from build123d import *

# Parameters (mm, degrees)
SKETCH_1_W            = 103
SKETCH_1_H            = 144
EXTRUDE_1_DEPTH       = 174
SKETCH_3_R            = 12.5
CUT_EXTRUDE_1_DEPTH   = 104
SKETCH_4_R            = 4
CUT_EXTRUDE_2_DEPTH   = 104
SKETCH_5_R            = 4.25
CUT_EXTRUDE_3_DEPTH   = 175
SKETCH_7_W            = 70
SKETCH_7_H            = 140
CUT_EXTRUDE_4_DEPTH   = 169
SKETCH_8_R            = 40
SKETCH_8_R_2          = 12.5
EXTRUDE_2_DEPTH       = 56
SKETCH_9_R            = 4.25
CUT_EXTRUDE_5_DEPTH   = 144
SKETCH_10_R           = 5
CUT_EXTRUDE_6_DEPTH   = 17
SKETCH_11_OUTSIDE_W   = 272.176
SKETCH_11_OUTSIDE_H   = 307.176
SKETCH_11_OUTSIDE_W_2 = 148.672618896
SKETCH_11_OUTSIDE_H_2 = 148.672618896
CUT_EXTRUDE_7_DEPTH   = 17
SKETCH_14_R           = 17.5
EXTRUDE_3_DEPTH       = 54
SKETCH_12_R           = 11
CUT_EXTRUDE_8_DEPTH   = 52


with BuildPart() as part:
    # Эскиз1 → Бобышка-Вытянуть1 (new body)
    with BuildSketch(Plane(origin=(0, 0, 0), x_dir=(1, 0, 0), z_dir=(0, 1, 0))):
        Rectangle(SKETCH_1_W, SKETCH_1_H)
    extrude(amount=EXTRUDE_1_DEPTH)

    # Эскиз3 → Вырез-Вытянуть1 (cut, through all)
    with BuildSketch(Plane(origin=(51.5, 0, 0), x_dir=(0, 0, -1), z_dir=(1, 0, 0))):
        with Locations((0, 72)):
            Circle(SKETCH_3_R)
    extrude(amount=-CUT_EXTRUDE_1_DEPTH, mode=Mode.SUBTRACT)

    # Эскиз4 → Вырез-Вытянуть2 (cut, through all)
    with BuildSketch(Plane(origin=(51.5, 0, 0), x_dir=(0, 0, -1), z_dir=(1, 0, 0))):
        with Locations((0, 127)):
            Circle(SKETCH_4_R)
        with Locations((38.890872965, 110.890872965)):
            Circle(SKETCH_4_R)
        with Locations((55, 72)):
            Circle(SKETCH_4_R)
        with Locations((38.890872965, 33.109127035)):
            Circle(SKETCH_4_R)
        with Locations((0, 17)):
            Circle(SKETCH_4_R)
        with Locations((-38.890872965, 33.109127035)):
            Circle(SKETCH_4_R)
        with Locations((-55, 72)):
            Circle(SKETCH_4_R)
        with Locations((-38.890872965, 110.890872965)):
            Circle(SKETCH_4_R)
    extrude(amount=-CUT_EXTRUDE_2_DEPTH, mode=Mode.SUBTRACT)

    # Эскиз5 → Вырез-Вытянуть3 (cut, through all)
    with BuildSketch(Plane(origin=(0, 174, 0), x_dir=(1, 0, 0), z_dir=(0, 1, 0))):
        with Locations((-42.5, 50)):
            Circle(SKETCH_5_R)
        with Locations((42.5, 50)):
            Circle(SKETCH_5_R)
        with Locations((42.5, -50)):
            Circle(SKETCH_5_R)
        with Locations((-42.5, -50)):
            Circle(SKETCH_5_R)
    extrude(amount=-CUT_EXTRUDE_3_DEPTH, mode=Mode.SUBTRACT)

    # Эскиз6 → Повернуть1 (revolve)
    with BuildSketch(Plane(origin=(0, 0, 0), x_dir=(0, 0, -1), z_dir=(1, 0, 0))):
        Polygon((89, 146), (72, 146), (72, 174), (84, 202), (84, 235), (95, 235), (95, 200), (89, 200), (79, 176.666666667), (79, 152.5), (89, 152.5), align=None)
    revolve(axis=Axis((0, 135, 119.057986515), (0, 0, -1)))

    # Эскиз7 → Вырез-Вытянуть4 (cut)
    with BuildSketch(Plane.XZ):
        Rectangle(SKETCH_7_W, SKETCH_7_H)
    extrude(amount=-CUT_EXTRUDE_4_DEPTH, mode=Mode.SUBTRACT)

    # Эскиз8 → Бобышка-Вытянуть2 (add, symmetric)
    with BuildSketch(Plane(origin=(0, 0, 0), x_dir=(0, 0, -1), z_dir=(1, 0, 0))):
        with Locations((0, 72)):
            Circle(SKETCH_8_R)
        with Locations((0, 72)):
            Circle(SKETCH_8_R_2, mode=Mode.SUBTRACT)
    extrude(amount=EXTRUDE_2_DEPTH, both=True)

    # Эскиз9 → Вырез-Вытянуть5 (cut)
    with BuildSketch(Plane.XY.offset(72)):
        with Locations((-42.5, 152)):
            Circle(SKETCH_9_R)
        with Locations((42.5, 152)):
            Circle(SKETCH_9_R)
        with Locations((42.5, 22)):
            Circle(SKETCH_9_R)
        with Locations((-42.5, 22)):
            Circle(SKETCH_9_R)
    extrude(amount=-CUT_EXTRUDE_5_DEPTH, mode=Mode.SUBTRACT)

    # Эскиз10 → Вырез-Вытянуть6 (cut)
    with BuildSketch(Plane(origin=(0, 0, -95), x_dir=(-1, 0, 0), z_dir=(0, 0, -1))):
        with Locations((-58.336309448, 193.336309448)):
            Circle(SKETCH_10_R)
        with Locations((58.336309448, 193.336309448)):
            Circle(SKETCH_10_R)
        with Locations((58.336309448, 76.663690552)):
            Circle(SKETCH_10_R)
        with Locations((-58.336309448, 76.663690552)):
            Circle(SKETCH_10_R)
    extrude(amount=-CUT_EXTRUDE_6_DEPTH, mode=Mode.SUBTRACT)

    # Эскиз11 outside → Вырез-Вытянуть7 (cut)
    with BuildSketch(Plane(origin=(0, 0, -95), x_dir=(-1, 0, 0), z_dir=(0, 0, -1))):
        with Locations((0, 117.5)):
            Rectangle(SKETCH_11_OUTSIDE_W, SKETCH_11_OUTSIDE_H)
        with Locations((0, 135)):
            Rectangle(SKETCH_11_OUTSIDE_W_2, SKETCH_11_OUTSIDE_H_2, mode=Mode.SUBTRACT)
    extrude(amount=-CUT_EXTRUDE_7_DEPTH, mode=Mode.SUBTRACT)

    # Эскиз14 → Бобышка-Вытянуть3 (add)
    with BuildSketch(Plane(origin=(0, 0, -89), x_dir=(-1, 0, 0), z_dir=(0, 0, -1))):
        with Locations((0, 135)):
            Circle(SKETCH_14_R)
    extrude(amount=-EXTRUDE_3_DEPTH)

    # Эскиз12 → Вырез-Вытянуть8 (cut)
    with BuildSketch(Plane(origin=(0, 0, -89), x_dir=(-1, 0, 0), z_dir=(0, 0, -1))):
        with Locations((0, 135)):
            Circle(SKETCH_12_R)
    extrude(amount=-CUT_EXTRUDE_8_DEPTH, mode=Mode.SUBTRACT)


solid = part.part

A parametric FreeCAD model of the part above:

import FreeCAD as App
import Part
import Sketcher
from FreeCAD import Vector
Q = App.Units.Quantity


def add_polygon(sketch, points):
    """Adds a closed chain of lines whose ends are joined by coincident constraints."""
    first, n = sketch.GeometryCount, len(points)
    for a, b in zip(points, points[1:] + points[:1]):
        sketch.addGeometry(Part.LineSegment(App.Vector(*a, 0), App.Vector(*b, 0)), False)
    for i in range(n):
        sketch.addConstraint(Sketcher.Constraint("Coincident", first + i, 2, first + (i + 1) % n, 1))

doc = App.newDocument("Part")
params = doc.addObject("Spreadsheet::Sheet", "Params")
for row, (alias, value) in enumerate([
    ("sketch1_width", "103 mm"),
    ("sketch1_height", "144 mm"),
    ("pad1_length", "174 mm"),
    ("sketch2_diameter", "25 mm"),
    ("sketch3_diameter", "8 mm"),
    ("sketch4_diameter", "8.5 mm"),
    ("sketch5_width", "35 mm"),
    ("sketch5_width2", "33 mm"),
    ("sketch5_width3", "28 mm"),
    ("sketch5_height", "17 mm"),
    ("sketch5_height2", "10 mm"),
    ("revolution_angle", "360 deg"),
    ("sketch6_width", "70 mm"),
    ("sketch6_height", "140 mm"),
    ("pocket4_length", "169 mm"),
    ("sketch7_diameter", "80 mm"),
    ("sketch7_diameter2", "25 mm"),
    ("pad2_length", "112 mm"),
    ("sketch8_diameter", "8.5 mm"),
    ("pocket5_length", "144 mm"),
    ("sketch9_diameter", "10 mm"),
    ("pocket6_length", "17 mm"),
    ("pocket7_length", "17 mm"),
    ("sketch11_diameter", "35 mm"),
    ("pad3_length", "54 mm"),
    ("sketch12_diameter", "22 mm"),
    ("pocket8_length", "52 mm"),
], start=1):
    params.set(f"A{row}", alias)
    params.set(f"B{row}", "=" + value)
    params.setAlias(f"B{row}", alias)

body = doc.addObject("PartDesign::Body", "Body")

# Sketch on XZ plane
sketch1 = body.newObject("Sketcher::SketchObject", "Sketch")
sketch1.AttachmentSupport = (doc.getObject("XZ_Plane"), [""])
sketch1.MapMode = "FlatFace"
add_polygon(sketch1, [(-52, -72), (-52, 72), (52, 72), (52, -72)])  # lines 0-3
sketch1.addConstraint([
    Sketcher.Constraint("Vertical", 0),
    Sketcher.Constraint("Horizontal", 1),
    Sketcher.Constraint("Vertical", 2),
    Sketcher.Constraint("Horizontal", 3),
    Sketcher.Constraint("Symmetric", 0, 2, 2, 2, -1, 1),
    Sketcher.Constraint("DistanceX", 1, 1, 1, 2, Q("103 mm")),
    Sketcher.Constraint("DistanceY", 0, 1, 0, 2, Q("144 mm")),
])
sketch1.setExpression("Constraints[9]", "Params.sketch1_width")
sketch1.setExpression("Constraints[10]", "Params.sketch1_height")
pad1 = body.newObject("PartDesign::Pad", "Pad")
pad1.Profile = sketch1
pad1.setExpression("Length", "Params.pad1_length")
pad1.Reversed = True

# Sketch on YZ plane
sketch2 = body.newObject("Sketcher::SketchObject", "Sketch001")
sketch2.AttachmentSupport = (doc.getObject("YZ_Plane"), [""])
sketch2.MapMode = "FlatFace"
sketch2.AttachmentOffset = App.Placement(Vector(0, 0, 51.5), App.Rotation())
sketch2.addGeometry(Part.Circle(Vector(72, 0, 0), Vector(0, 0, 1), 12), False)
sketch2.addConstraint([
    Sketcher.Constraint("PointOnObject", 0, 3, -1),
    Sketcher.Constraint("Diameter", 0, Q("25 mm")),
    Sketcher.Constraint("DistanceX", -1, 1, 0, 3, Q("72 mm")),
])
sketch2.setExpression("Constraints[1]", "Params.sketch2_diameter")
pocket1 = body.newObject("PartDesign::Pocket", "Pocket")
pocket1.Profile = sketch2
pocket1.Type = "ThroughAll"

# Sketch on YZ plane
sketch3 = body.newObject("Sketcher::SketchObject", "Sketch002")
sketch3.AttachmentSupport = (doc.getObject("YZ_Plane"), [""])
sketch3.MapMode = "FlatFace"
sketch3.AttachmentOffset = App.Placement(Vector(0, 0, 51.5), App.Rotation())
sketch3.addGeometry([
    Part.Circle(Vector(127, 0, 0), Vector(0, 0, 1), 4),  # 0
    Part.Circle(Vector(110.9, -38.9, 0), Vector(0, 0, 1), 4),  # 1
    Part.Circle(Vector(72, -55, 0), Vector(0, 0, 1), 4),  # 2
    Part.Circle(Vector(33.1, -38.9, 0), Vector(0, 0, 1), 4),  # 3
    Part.Circle(Vector(17, 0, 0), Vector(0, 0, 1), 4),  # 4
    Part.Circle(Vector(33.1, 38.9, 0), Vector(0, 0, 1), 4),  # 5
    Part.Circle(Vector(72, 55, 0), Vector(0, 0, 1), 4),  # 6
    Part.Circle(Vector(110.9, 38.9, 0), Vector(0, 0, 1), 4),  # 7
], False)
sketch3.addConstraint([
    Sketcher.Constraint("Equal", 0, 1),
    Sketcher.Constraint("Equal", 1, 2),
    Sketcher.Constraint("Equal", 2, 3),
    Sketcher.Constraint("Equal", 3, 4),
    Sketcher.Constraint("Equal", 4, 5),
    Sketcher.Constraint("Equal", 5, 6),
    Sketcher.Constraint("Equal", 6, 7),
    Sketcher.Constraint("Symmetric", 3, 3, 5, 3, -1),
    Sketcher.Constraint("Symmetric", 2, 3, 6, 3, -1),
    Sketcher.Constraint("Symmetric", 1, 3, 7, 3, -1),
    Sketcher.Constraint("PointOnObject", 0, 3, -1),
    Sketcher.Constraint("PointOnObject", 4, 3, -1),
    Sketcher.Constraint("Horizontal", 1, 3, 3, 3),
    Sketcher.Constraint("Diameter", 0, Q("8 mm")),
    Sketcher.Constraint("DistanceX", -1, 1, 0, 3, Q("127 mm")),
    Sketcher.Constraint("DistanceX", -1, 1, 2, 3, Q("72 mm")),
    Sketcher.Constraint("DistanceY", 2, 3, -1, 1, Q("55 mm")),
    Sketcher.Constraint("DistanceX", -1, 1, 4, 3, Q("17 mm")),
    Sketcher.Constraint("DistanceX", -1, 1, 1, 3, Q("110.890873 mm")),
    Sketcher.Constraint("DistanceY", 1, 3, -1, 1, Q("38.890873 mm")),
    Sketcher.Constraint("DistanceX", -1, 1, 3, 3, Q("33.109127 mm")),
])
sketch3.setExpression("Constraints[13]", "Params.sketch3_diameter")
pocket2 = body.newObject("PartDesign::Pocket", "Pocket001")
pocket2.Profile = sketch3
pocket2.Type = "ThroughAll"

# Sketch on XZ plane
sketch4 = body.newObject("Sketcher::SketchObject", "Sketch003")
sketch4.AttachmentSupport = (doc.getObject("XZ_Plane"), [""])
sketch4.MapMode = "FlatFace"
sketch4.AttachmentOffset = App.Placement(Vector(0, 0, -174), App.Rotation())
sketch4.addGeometry([
    Part.Circle(Vector(-42.5, -50, 0), Vector(0, 0, 1), 4.2),
    Part.Circle(Vector(42.5, -50, 0), Vector(0, 0, 1), 4.2),
    Part.Circle(Vector(42.5, 50, 0), Vector(0, 0, 1), 4.2),
    Part.Circle(Vector(-42.5, 50, 0), Vector(0, 0, 1), 4.2),
], False)
sketch4.addConstraint([
    Sketcher.Constraint("Equal", 0, 1),
    Sketcher.Constraint("Equal", 1, 2),
    Sketcher.Constraint("Equal", 2, 3),
    Sketcher.Constraint("Symmetric", 0, 3, 2, 3, -1, 1),
    Sketcher.Constraint("Symmetric", 1, 3, 3, 3, -1, 1),
    Sketcher.Constraint("Symmetric", 0, 3, 1, 3, -2),
    Sketcher.Constraint("Diameter", 0, Q("8.5 mm")),
    Sketcher.Constraint("DistanceY", 0, 3, -1, 1, Q("50 mm")),
    Sketcher.Constraint("DistanceX", 0, 3, 1, 3, Q("85 mm")),
])
sketch4.setExpression("Constraints[6]", "Params.sketch4_diameter")
pocket3 = body.newObject("PartDesign::Pocket", "Pocket002")
pocket3.Profile = sketch4
pocket3.Type = "ThroughAll"
pocket3.Reversed = True

# Sketch on YZ plane
sketch5 = body.newObject("Sketcher::SketchObject", "Sketch004")
sketch5.AttachmentSupport = (doc.getObject("YZ_Plane"), [""])
sketch5.MapMode = "FlatFace"
add_polygon(sketch5, [(146, -72), (146, -89), (152, -89), (152, -79), (177, -79), (200, -89), (200, -95), (235, -95), (235, -84), (202, -84), (174, -72)])  # lines 0-10
sketch5.addGeometry(Part.LineSegment(Vector(135, -72, 0), Vector(135, -95, 0)), True)  # axis
sketch5.addConstraint([
    Sketcher.Constraint("Vertical", 0),
    Sketcher.Constraint("Horizontal", 1),
    Sketcher.Constraint("Vertical", 2),
    Sketcher.Constraint("Horizontal", 3),
    Sketcher.Constraint("Vertical", 5),
    Sketcher.Constraint("Horizontal", 6),
    Sketcher.Constraint("Vertical", 7),
    Sketcher.Constraint("Horizontal", 8),
    Sketcher.Constraint("Horizontal", 10),
    Sketcher.Constraint("Vertical", 11),
    Sketcher.Constraint("Parallel", 4, 9),
    Sketcher.Constraint("Horizontal", 1, 2, 4, 2),
    Sketcher.Constraint("Horizontal", 10, 2, 11, 1),
    Sketcher.Constraint("Horizontal", 6, 2, 11, 2),
    Sketcher.Constraint("DistanceX", 6, 1, 6, 2, Q("35 mm")),
    Sketcher.Constraint("DistanceX", 8, 2, 8, 1, Q("33 mm")),
    Sketcher.Constraint("DistanceX", 10, 2, 10, 1, Q("28 mm")),
    Sketcher.Constraint("DistanceY", 0, 2, 0, 1, Q("17 mm")),
    Sketcher.Constraint("DistanceY", 2, 1, 2, 2, Q("10 mm")),
    Sketcher.Constraint("DistanceY", 5, 2, 5, 1, Q("6 mm")),
    Sketcher.Constraint("DistanceY", 7, 1, 7, 2, Q("11 mm")),
    Sketcher.Constraint("DistanceX", 1, 1, 1, 2, Q("6.5 mm")),
    Sketcher.Constraint("DistanceX", -1, 1, 0, 2, Q("146 mm")),
    Sketcher.Constraint("DistanceY", 0, 2, -1, 1, Q("89 mm")),
    Sketcher.Constraint("DistanceX", -1, 1, 4, 2, Q("200 mm")),
    Sketcher.Constraint("DistanceX", -1, 1, 11, 1, Q("135 mm")),
])
sketch5.setExpression("Constraints[25]", "Params.sketch5_width")
sketch5.setExpression("Constraints[26]", "Params.sketch5_width2")
sketch5.setExpression("Constraints[27]", "Params.sketch5_width3")
sketch5.setExpression("Constraints[28]", "Params.sketch5_height")
sketch5.setExpression("Constraints[29]", "Params.sketch5_height2")
revolution = body.newObject("PartDesign::Revolution", "Revolution")
revolution.Profile = sketch5
revolution.ReferenceAxis = (sketch5, ["Axis0"])
revolution.setExpression("Angle", "Params.revolution_angle")

# Sketch on XZ plane
sketch6 = body.newObject("Sketcher::SketchObject", "Sketch005")
sketch6.AttachmentSupport = (doc.getObject("XZ_Plane"), [""])
sketch6.MapMode = "FlatFace"
add_polygon(sketch6, [(-35, 70), (-35, -70), (35, -70), (35, 70)])  # lines 0-3
sketch6.addConstraint([
    Sketcher.Constraint("Vertical", 0),
    Sketcher.Constraint("Horizontal", 1),
    Sketcher.Constraint("Vertical", 2),
    Sketcher.Constraint("Horizontal", 3),
    Sketcher.Constraint("Symmetric", 0, 2, 2, 2, -1, 1),
    Sketcher.Constraint("DistanceX", 1, 1, 1, 2, Q("70 mm")),
    Sketcher.Constraint("DistanceY", 0, 2, 0, 1, Q("140 mm")),
])
sketch6.setExpression("Constraints[9]", "Params.sketch6_width")
sketch6.setExpression("Constraints[10]", "Params.sketch6_height")
pocket4 = body.newObject("PartDesign::Pocket", "Pocket003")
pocket4.Profile = sketch6
pocket4.setExpression("Length", "Params.pocket4_length")

# Sketch on YZ plane
sketch7 = body.newObject("Sketcher::SketchObject", "Sketch006")
sketch7.AttachmentSupport = (doc.getObject("YZ_Plane"), [""])
sketch7.MapMode = "FlatFace"
sketch7.addGeometry([
    Part.Circle(Vector(72, 0, 0), Vector(0, 0, 1), 40),
    Part.Circle(Vector(72, 0, 0), Vector(0, 0, 1), 12),
], False)
sketch7.addConstraint([
    Sketcher.Constraint("Coincident", 1, 3, 0, 3),
    Sketcher.Constraint("PointOnObject", 0, 3, -1),
    Sketcher.Constraint("Diameter", 0, Q("80 mm")),
    Sketcher.Constraint("Diameter", 1, Q("25 mm")),
    Sketcher.Constraint("DistanceX", -1, 1, 0, 3, Q("72 mm")),
])
sketch7.setExpression("Constraints[2]", "Params.sketch7_diameter")
sketch7.setExpression("Constraints[3]", "Params.sketch7_diameter2")
pad2 = body.newObject("PartDesign::Pad", "Pad001")
pad2.Profile = sketch7
pad2.setExpression("Length", "Params.pad2_length")
pad2.Midplane = True

# Sketch on XY plane
sketch8 = body.newObject("Sketcher::SketchObject", "Sketch007")
sketch8.AttachmentSupport = (doc.getObject("XY_Plane"), [""])
sketch8.MapMode = "FlatFace"
sketch8.AttachmentOffset = App.Placement(Vector(0, 0, 72), App.Rotation())
sketch8.addGeometry([
    Part.Circle(Vector(-42.5, 152, 0), Vector(0, 0, 1), 4.2),
    Part.Circle(Vector(42.5, 152, 0), Vector(0, 0, 1), 4.2),
    Part.Circle(Vector(42.5, 22, 0), Vector(0, 0, 1), 4.2),
    Part.Circle(Vector(-42.5, 22, 0), Vector(0, 0, 1), 4.2),
], False)
sketch8.addConstraint([
    Sketcher.Constraint("Equal", 0, 1),
    Sketcher.Constraint("Equal", 1, 2),
    Sketcher.Constraint("Equal", 2, 3),
    Sketcher.Constraint("Symmetric", 0, 3, 1, 3, -2),
    Sketcher.Constraint("Symmetric", 2, 3, 3, 3, -2),
    Sketcher.Constraint("Vertical", 1, 3, 2, 3),
    Sketcher.Constraint("Diameter", 0, Q("8.5 mm")),
    Sketcher.Constraint("DistanceY", -1, 1, 0, 3, Q("152 mm")),
    Sketcher.Constraint("DistanceY", -1, 1, 2, 3, Q("22 mm")),
    Sketcher.Constraint("DistanceX", 0, 3, 1, 3, Q("85 mm")),
])
sketch8.setExpression("Constraints[6]", "Params.sketch8_diameter")
pocket5 = body.newObject("PartDesign::Pocket", "Pocket004")
pocket5.Profile = sketch8
pocket5.setExpression("Length", "Params.pocket5_length")

# Sketch on XY plane
sketch9 = body.newObject("Sketcher::SketchObject", "Sketch008")
sketch9.AttachmentSupport = (doc.getObject("XY_Plane"), [""])
sketch9.MapMode = "FlatFace"
sketch9.AttachmentOffset = App.Placement(Vector(0, 0, -95), App.Rotation())
sketch9.addGeometry([
    Part.Circle(Vector(58, 193, 0), Vector(0, 0, 1), 5),
    Part.Circle(Vector(-58, 193, 0), Vector(0, 0, 1), 5),
    Part.Circle(Vector(-58, 77, 0), Vector(0, 0, 1), 5),
    Part.Circle(Vector(58, 77, 0), Vector(0, 0, 1), 5),
], False)
sketch9.addConstraint([
    Sketcher.Constraint("Equal", 0, 1),
    Sketcher.Constraint("Equal", 1, 2),
    Sketcher.Constraint("Equal", 2, 3),
    Sketcher.Constraint("Symmetric", 0, 3, 1, 3, -2),
    Sketcher.Constraint("Symmetric", 2, 3, 3, 3, -2),
    Sketcher.Constraint("Vertical", 1, 3, 2, 3),
    Sketcher.Constraint("Diameter", 0, Q("10 mm")),
    Sketcher.Constraint("DistanceX", -1, 1, 0, 3, Q("58.336309 mm")),
    Sketcher.Constraint("DistanceY", -1, 1, 0, 3, Q("193.336309 mm")),
    Sketcher.Constraint("DistanceY", -1, 1, 2, 3, Q("76.663691 mm")),
])
sketch9.setExpression("Constraints[6]", "Params.sketch9_diameter")
pocket6 = body.newObject("PartDesign::Pocket", "Pocket005")
pocket6.Profile = sketch9
pocket6.setExpression("Length", "Params.pocket6_length")
pocket6.Reversed = True

# Sketch on XY plane
sketch10 = body.newObject("Sketcher::SketchObject", "Sketch009")
sketch10.AttachmentSupport = (doc.getObject("XY_Plane"), [""])
sketch10.MapMode = "FlatFace"
sketch10.AttachmentOffset = App.Placement(Vector(0, 0, -95), App.Rotation())
add_polygon(sketch10, [(136, 271), (136, -36), (-136, -36), (-136, 271)])  # lines 0-3
add_polygon(sketch10, [(-74, 61), (74, 61), (74, 209), (-74, 209)])  # lines 4-7
sketch10.addConstraint([
    Sketcher.Constraint("Vertical", 0),
    Sketcher.Constraint("Horizontal", 1),
    Sketcher.Constraint("Vertical", 2),
    Sketcher.Constraint("Horizontal", 3),
    Sketcher.Constraint("Horizontal", 4),
    Sketcher.Constraint("Vertical", 5),
    Sketcher.Constraint("Horizontal", 6),
    Sketcher.Constraint("Vertical", 7),
    Sketcher.Constraint("Equal", 6, 5),
    Sketcher.Constraint("DistanceX", 1, 2, 1, 1, Q("272.176 mm")),
    Sketcher.Constraint("DistanceY", 0, 2, 0, 1, Q("307.176 mm")),
    Sketcher.Constraint("DistanceX", -1, 1, 0, 2, Q("136.088 mm")),
    Sketcher.Constraint("DistanceY", 0, 2, -1, 1, Q("36.088 mm")),
    Sketcher.Constraint("DistanceX", 4, 1, 4, 2, Q("148.672619 mm")),
    Sketcher.Constraint("DistanceX", -1, 1, 4, 2, Q("74.336309 mm")),
    Sketcher.Constraint("DistanceY", -1, 1, 4, 2, Q("60.663691 mm")),
])
pocket7 = body.newObject("PartDesign::Pocket", "Pocket006")
pocket7.Profile = sketch10
pocket7.setExpression("Length", "Params.pocket7_length")
pocket7.Reversed = True

# Sketch on XY plane
sketch11 = body.newObject("Sketcher::SketchObject", "Sketch010")
sketch11.AttachmentSupport = (doc.getObject("XY_Plane"), [""])
sketch11.MapMode = "FlatFace"
sketch11.AttachmentOffset = App.Placement(Vector(0, 0, -89), App.Rotation())
sketch11.addGeometry(Part.Circle(Vector(0, 135, 0), Vector(0, 0, 1), 18), False)
sketch11.addConstraint([
    Sketcher.Constraint("PointOnObject", 0, 3, -2),
    Sketcher.Constraint("Diameter", 0, Q("35 mm")),
    Sketcher.Constraint("DistanceY", -1, 1, 0, 3, Q("135 mm")),
])
sketch11.setExpression("Constraints[1]", "Params.sketch11_diameter")
pad3 = body.newObject("PartDesign::Pad", "Pad002")
pad3.Profile = sketch11
pad3.setExpression("Length", "Params.pad3_length")

# Sketch on XY plane
sketch12 = body.newObject("Sketcher::SketchObject", "Sketch011")
sketch12.AttachmentSupport = (doc.getObject("XY_Plane"), [""])
sketch12.MapMode = "FlatFace"
sketch12.AttachmentOffset = App.Placement(Vector(0, 0, -89), App.Rotation())
sketch12.addGeometry(Part.Circle(Vector(0, 135, 0), Vector(0, 0, 1), 11), False)
sketch12.addConstraint([
    Sketcher.Constraint("PointOnObject", 0, 3, -2),
    Sketcher.Constraint("Diameter", 0, Q("22 mm")),
    Sketcher.Constraint("DistanceY", -1, 1, 0, 3, Q("135 mm")),
])
sketch12.setExpression("Constraints[1]", "Params.sketch12_diameter")
pocket8 = body.newObject("PartDesign::Pocket", "Pocket007")
pocket8.Profile = sketch12
pocket8.setExpression("Length", "Params.pocket8_length")
pocket8.Reversed = True

doc.recompute()
